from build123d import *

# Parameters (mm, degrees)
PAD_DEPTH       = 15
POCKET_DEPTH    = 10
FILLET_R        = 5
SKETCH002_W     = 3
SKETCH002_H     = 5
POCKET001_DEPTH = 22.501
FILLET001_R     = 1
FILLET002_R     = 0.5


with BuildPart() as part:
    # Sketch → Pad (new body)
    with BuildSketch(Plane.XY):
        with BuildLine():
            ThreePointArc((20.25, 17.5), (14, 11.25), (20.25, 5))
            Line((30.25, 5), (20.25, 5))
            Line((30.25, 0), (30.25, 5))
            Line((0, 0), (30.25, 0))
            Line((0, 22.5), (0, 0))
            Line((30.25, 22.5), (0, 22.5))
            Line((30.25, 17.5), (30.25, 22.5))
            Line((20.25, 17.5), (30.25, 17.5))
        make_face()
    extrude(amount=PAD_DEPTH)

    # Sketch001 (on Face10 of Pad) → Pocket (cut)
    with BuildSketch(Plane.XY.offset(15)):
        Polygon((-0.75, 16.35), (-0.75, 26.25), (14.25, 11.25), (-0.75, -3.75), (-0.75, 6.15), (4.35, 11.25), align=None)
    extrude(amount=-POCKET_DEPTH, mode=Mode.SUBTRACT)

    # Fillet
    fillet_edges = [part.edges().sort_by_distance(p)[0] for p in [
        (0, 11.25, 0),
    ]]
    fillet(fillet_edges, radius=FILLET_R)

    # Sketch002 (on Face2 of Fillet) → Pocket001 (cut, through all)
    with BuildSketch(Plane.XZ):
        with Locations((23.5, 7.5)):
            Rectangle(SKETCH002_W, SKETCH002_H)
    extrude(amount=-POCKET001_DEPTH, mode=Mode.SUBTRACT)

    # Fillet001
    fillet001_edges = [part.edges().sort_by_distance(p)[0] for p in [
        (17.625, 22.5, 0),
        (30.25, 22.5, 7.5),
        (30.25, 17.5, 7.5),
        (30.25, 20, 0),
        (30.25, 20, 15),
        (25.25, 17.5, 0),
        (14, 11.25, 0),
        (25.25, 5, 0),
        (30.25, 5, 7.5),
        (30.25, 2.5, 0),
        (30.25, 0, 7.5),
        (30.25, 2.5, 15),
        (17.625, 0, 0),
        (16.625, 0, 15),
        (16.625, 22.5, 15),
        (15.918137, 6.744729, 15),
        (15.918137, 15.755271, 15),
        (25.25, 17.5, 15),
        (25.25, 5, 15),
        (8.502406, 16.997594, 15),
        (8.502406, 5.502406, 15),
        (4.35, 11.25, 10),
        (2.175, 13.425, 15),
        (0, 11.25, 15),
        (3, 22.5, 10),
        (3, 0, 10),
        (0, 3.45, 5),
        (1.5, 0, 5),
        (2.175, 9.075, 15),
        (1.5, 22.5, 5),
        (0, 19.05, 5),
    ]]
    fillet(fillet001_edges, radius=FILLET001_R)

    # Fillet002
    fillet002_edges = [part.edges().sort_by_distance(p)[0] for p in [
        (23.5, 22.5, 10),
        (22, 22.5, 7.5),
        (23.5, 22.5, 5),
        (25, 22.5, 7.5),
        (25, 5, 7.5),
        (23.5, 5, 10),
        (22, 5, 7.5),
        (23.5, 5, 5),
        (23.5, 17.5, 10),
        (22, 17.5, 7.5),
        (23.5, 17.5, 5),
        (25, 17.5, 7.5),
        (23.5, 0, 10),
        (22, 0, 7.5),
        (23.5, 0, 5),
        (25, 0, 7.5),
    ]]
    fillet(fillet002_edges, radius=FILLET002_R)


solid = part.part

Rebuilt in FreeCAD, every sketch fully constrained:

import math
import FreeCAD as App
import Part
import Sketcher

V = App.Vector


def edges_at(feature, points):
    """Names of the edges that pass closest to the given points."""
    edges = feature.Shape.Edges
    near = lambda p: min(range(len(edges)), key=lambda i: edges[i].distToShape(Part.Vertex(*p))[0])
    return sorted({f"Edge{near(p) + 1}" for p in points})

doc = App.newDocument("Part")
body = doc.addObject("PartDesign::Body", "Body")

sketch1 = doc.addObject("Sketcher::SketchObject", "Sketch")
body.addObject(sketch1)
sketch1.AttachmentSupport = (doc.XY_Plane, [""])
sketch1.MapMode = "FlatFace"
sketch1.addGeometry([
    Part.ArcOfCircle(Part.Circle(V(20, 11, 0), V(0, 0, 1), 6), math.radians(90), math.radians(270)),
    Part.LineSegment(V(20, 18, 0), V(30, 18, 0)),
    Part.LineSegment(V(30, 18, 0), V(30, 22, 0)),
    Part.LineSegment(V(30, 22, 0), V(0, 22, 0)),
    Part.LineSegment(V(0, 22, 0), V(0, 0, 0)),
    Part.LineSegment(V(0, 0, 0), V(30, 0, 0)),
    Part.LineSegment(V(30, 0, 0), V(30, 5, 0)),
    Part.LineSegment(V(30, 5, 0), V(20, 5, 0)),
], False)
sketch1.addConstraint([
    Sketcher.Constraint("Tangent", 0, 1, 1, 1),
    Sketcher.Constraint("Coincident", 1, 2, 2, 1),
    Sketcher.Constraint("Coincident", 2, 2, 3, 1),
    Sketcher.Constraint("Coincident", 3, 2, 4, 1),
    Sketcher.Constraint("Coincident", 4, 2, 5, 1),
    Sketcher.Constraint("Coincident", 5, 2, 6, 1),
    Sketcher.Constraint("Coincident", 6, 2, 7, 1),
    Sketcher.Constraint("Tangent", 7, 2, 0, 2),
    Sketcher.Constraint("Horizontal", 1),
    Sketcher.Constraint("Vertical", 2),
    Sketcher.Constraint("Horizontal", 3),
    Sketcher.Constraint("Vertical", 4),
    Sketcher.Constraint("Horizontal", 5),
    Sketcher.Constraint("Vertical", 6),
    Sketcher.Constraint("Horizontal", 7),
    Sketcher.Constraint("Coincident", 4, 2, -1, 1),
    Sketcher.Constraint("Vertical", 2, 2, 5, 2),
    Sketcher.Constraint("Equal", 2, 6),
    Sketcher.Constraint("DistanceX", 1, 1, 1, 2, 10.0),
    Sketcher.Constraint("DistanceY", 2, 1, 2, 2, 5.0),
    Sketcher.Constraint("Radius", 0, 6.25),
    Sketcher.Constraint("DistanceX", 3, 2, 3, 1, 30.25),
])
pad1 = doc.addObject("PartDesign::Pad", "Pad")
body.addObject(pad1)
pad1.Profile = sketch1
pad1.Length = 15

sketch2 = doc.addObject("Sketcher::SketchObject", "Sketch001")
body.addObject(sketch2)
sketch2.AttachmentSupport = (doc.XY_Plane, [""])
sketch2.MapMode = "FlatFace"
sketch2.AttachmentOffset = App.Placement(V(0, 0, 15), App.Rotation())
sketch2.addGeometry([
    Part.LineSegment(V(-1, 26, 0), V(-1, 16, 0)),
    Part.LineSegment(V(-1, 16, 0), V(4, 11, 0)),
    Part.LineSegment(V(4, 11, 0), V(-1, 6, 0)),
    Part.LineSegment(V(-1, 6, 0), V(-1, -4, 0)),
    Part.LineSegment(V(-1, -4, 0), V(14, 11, 0)),
    Part.LineSegment(V(14, 11, 0), V(-1, 26, 0)),
], False)
sketch2.addConstraint([
    Sketcher.Constraint("Coincident", 0, 2, 1, 1),
    Sketcher.Constraint("Coincident", 1, 2, 2, 1),
    Sketcher.Constraint("Coincident", 2, 2, 3, 1),
    Sketcher.Constraint("Coincident", 3, 2, 4, 1),
    Sketcher.Constraint("Coincident", 4, 2, 5, 1),
    Sketcher.Constraint("Coincident", 5, 2, 0, 1),
    Sketcher.Constraint("Vertical", 0),
    Sketcher.Constraint("Vertical", 3),
    Sketcher.Constraint("Perpendicular", 1, 2),
    Sketcher.Constraint("Parallel", 2, 4),
    Sketcher.Constraint("Perpendicular", 4, 5),
    Sketcher.Constraint("Horizontal", 1, 2, 4, 2),
    Sketcher.Constraint("Vertical", 0, 2, 2, 2),
    Sketcher.Constraint("Equal", 0, 3),
    Sketcher.Constraint("DistanceY", 0, 2, 0, 1, 9.9),
    Sketcher.Constraint("DistanceY", 3, 2, 1, 2, 15.0),
    Sketcher.Constraint("DistanceX", 0, 2, -1, 1, 0.75),
    Sketcher.Constraint("DistanceY", -1, 1, 0, 2, 16.35),
])
pocket1 = doc.addObject("PartDesign::Pocket", "Pocket")
body.addObject(pocket1)
pocket1.Profile = sketch2
pocket1.Length = 10
doc.recompute()

fillet = doc.addObject("PartDesign::Fillet", "Fillet")
body.addObject(fillet)
fillet.Base = (pocket1, edges_at(pocket1, [(0, 11.25, 0)]))
fillet.Radius = 5

sketch3 = doc.addObject("Sketcher::SketchObject", "Sketch002")
body.addObject(sketch3)
sketch3.AttachmentSupport = (doc.XZ_Plane, [""])
sketch3.MapMode = "FlatFace"
sketch3.addGeometry([
    Part.LineSegment(V(22, 10, 0), V(22, 5, 0)),
    Part.LineSegment(V(22, 5, 0), V(25, 5, 0)),
    Part.LineSegment(V(25, 5, 0), V(25, 10, 0)),
    Part.LineSegment(V(25, 10, 0), V(22, 10, 0)),
], False)
sketch3.addConstraint([
    Sketcher.Constraint("Coincident", 0, 2, 1, 1),
    Sketcher.Constraint("Coincident", 1, 2, 2, 1),
    Sketcher.Constraint("Coincident", 2, 2, 3, 1),
    Sketcher.Constraint("Coincident", 3, 2, 0, 1),
    Sketcher.Constraint("Vertical", 0),
    Sketcher.Constraint("Horizontal", 1),
    Sketcher.Constraint("Vertical", 2),
    Sketcher.Constraint("Horizontal", 3),
    Sketcher.Constraint("DistanceX", 1, 1, 1, 2, 3.0),
    Sketcher.Constraint("DistanceY", 0, 2, 0, 1, 5.0),
    Sketcher.Constraint("DistanceX", -1, 1, 0, 2, 22.0),
    Sketcher.Constraint("DistanceY", -1, 1, 0, 2, 5.0),
])
pocket2 = doc.addObject("PartDesign::Pocket", "Pocket001")
body.addObject(pocket2)
pocket2.Profile = sketch3
pocket2.Type = "ThroughAll"
doc.recompute()

fillet2 = doc.addObject("PartDesign::Fillet", "Fillet001")
body.addObject(fillet2)
fillet2.Base = (pocket2, edges_at(pocket2, [
    (17.625, 22.5, 0),
    (30.25, 22.5, 7.5),
    (30.25, 17.5, 7.5),
    (30.25, 20, 0),
    (30.25, 20, 15),
    (25.25, 17.5, 0),
    (14, 11.25, 0),
    (25.25, 5, 0),
    (30.25, 5, 7.5),
    (30.25, 2.5, 0),
    (30.25, 0, 7.5),
    (30.25, 2.5, 15),
    (17.625, 0, 0),
    (16.625, 0, 15),
    (16.625, 22.5, 15),
    (15.918, 6.745, 15),
    (15.918, 15.755, 15),
    (25.25, 17.5, 15),
    (25.25, 5, 15),
    (8.502, 16.998, 15),
    (8.502, 5.502, 15),
    (4.35, 11.25, 10),
    (2.175, 13.425, 15),
    (0, 11.25, 15),
    (3, 22.5, 10),
    (3, 0, 10),
    (0, 3.45, 5),
    (1.5, 0, 5),
    (2.175, 9.075, 15),
    (1.5, 22.5, 5),
    (0, 19.05, 5),
]))
fillet2.Radius = 1
doc.recompute()

fillet3 = doc.addObject("PartDesign::Fillet", "Fillet002")
body.addObject(fillet3)
fillet3.Base = (fillet2, edges_at(fillet2, [
    (23.5, 22.5, 10),
    (22, 22.5, 7.5),
    (23.5, 22.5, 5),
    (25, 22.5, 7.5),
    (25, 5, 7.5),
    (23.5, 5, 10),
    (22, 5, 7.5),
    (23.5, 5, 5),
    (23.5, 17.5, 10),
    (22, 17.5, 7.5),
    (23.5, 17.5, 5),
    (25, 17.5, 7.5),
    (23.5, 0, 10),
    (22, 0, 7.5),
    (23.5, 0, 5),
    (25, 0, 7.5),
]))
fillet3.Radius = 0.5

doc.recompute()
